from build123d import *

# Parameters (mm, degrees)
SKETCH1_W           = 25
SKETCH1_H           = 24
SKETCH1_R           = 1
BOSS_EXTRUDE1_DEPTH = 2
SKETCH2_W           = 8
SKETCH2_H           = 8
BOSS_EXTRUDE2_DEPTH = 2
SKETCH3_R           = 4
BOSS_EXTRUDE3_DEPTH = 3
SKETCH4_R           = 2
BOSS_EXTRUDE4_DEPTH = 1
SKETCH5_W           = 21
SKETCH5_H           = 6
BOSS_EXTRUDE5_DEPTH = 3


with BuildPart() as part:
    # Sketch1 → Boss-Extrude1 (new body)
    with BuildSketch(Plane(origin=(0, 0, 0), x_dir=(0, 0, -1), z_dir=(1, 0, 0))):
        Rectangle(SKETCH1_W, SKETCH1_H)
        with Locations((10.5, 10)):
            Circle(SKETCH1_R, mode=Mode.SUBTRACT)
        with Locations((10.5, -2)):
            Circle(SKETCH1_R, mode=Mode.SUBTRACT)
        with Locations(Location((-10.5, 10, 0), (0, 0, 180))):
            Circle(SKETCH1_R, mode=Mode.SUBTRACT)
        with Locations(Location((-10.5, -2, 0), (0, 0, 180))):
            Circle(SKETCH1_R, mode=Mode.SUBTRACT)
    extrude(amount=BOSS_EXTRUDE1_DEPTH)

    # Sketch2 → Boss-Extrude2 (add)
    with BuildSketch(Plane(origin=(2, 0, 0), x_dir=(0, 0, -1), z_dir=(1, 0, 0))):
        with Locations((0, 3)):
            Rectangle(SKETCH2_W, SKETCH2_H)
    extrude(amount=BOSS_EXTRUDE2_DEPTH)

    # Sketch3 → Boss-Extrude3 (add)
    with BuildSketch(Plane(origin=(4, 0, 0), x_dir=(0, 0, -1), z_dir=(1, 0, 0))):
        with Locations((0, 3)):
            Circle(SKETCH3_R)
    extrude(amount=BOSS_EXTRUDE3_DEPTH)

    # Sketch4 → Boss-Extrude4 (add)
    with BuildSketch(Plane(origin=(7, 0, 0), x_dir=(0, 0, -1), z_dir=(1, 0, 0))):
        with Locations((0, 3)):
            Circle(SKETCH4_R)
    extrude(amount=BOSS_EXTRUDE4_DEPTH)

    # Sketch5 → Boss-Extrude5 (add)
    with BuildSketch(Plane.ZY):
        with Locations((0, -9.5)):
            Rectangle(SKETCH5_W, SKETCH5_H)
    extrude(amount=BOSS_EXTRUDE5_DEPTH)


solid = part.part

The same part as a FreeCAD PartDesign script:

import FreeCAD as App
import Part
import Sketcher
from FreeCAD import Vector
Q = App.Units.Quantity

doc = App.newDocument("Part")
params = doc.addObject("Spreadsheet::Sheet", "Params")
for row, (alias, value) in enumerate([
    ("sketch1_diameter", "2 mm"),
    ("sketch1_width", "24 mm"),
    ("sketch1_height", "25 mm"),
    ("pad1_length", "2 mm"),
    ("sketch2_width", "8 mm"),
    ("pad2_length", "2 mm"),
    ("sketch3_diameter", "8 mm"),
    ("pad3_length", "3 mm"),
    ("sketch4_diameter", "4 mm"),
    ("pad4_length", "1 mm"),
    ("sketch5_width", "6 mm"),
    ("sketch5_height", "21 mm"),
    ("pad5_length", "3 mm"),
], start=1):
    params.set(f"A{row}", alias)
    params.set(f"B{row}", "=" + value)
    params.setAlias(f"B{row}", alias)

body = doc.addObject("PartDesign::Body", "Body")

sketch1 = body.newObject("Sketcher::SketchObject", "Sketch")
sketch1.AttachmentSupport = (doc.getObject("YZ_Plane"), [""])
sketch1.MapMode = "FlatFace"
sketch1.addGeometry([
    Part.LineSegment(Vector(12, 12.5, 0), Vector(-12, 12.5, 0)),
    Part.LineSegment(Vector(-12, 12.5, 0), Vector(-12, -12.5, 0)),
    Part.LineSegment(Vector(-12, -12.5, 0), Vector(12, -12.5, 0)),
    Part.LineSegment(Vector(12, -12.5, 0), Vector(12, 12.5, 0)),
    Part.Circle(Vector(-2, 10.5, 0), Vector(0, 0, 1), 1),
    Part.Circle(Vector(-2, -10.5, 0), Vector(0, 0, 1), 1),
    Part.Circle(Vector(10, 10.5, 0), Vector(0, 0, 1), 1),
    Part.Circle(Vector(10, -10.5, 0), Vector(0, 0, 1), 1),
], False)
sketch1.addConstraint([
    Sketcher.Constraint("Coincident", 0, 2, 1, 1),
    Sketcher.Constraint("Coincident", 1, 2, 2, 1),
    Sketcher.Constraint("Coincident", 2, 2, 3, 1),
    Sketcher.Constraint("Coincident", 3, 2, 0, 1),
    Sketcher.Constraint("Horizontal", 0),
    Sketcher.Constraint("Vertical", 1),
    Sketcher.Constraint("Horizontal", 2),
    Sketcher.Constraint("Vertical", 3),
    Sketcher.Constraint("Equal", 4, 5),
    Sketcher.Constraint("Equal", 5, 6),
    Sketcher.Constraint("Equal", 6, 7),
    Sketcher.Constraint("Symmetric", 0, 2, 2, 2, -1, 1),
    Sketcher.Constraint("Symmetric", 4, 3, 5, 3, -1),
    Sketcher.Constraint("Symmetric", 6, 3, 7, 3, -1),
    Sketcher.Constraint("Horizontal", 4, 3, 6, 3),
    Sketcher.Constraint("Diameter", 4, Q("2 mm")),
    Sketcher.Constraint("DistanceX", 0, 2, 0, 1, Q("24 mm")),
    Sketcher.Constraint("DistanceY", 1, 2, 1, 1, Q("25 mm")),
    Sketcher.Constraint("DistanceX", 4, 3, -1, 1, Q("2 mm")),
    Sketcher.Constraint("DistanceX", -1, 1, 6, 3, Q("10 mm")),
    Sketcher.Constraint("DistanceY", 5, 3, 4, 3, Q("21 mm")),
])
sketch1.setExpression("Constraints[15]", "Params.sketch1_diameter")
sketch1.setExpression("Constraints[16]", "Params.sketch1_width")
sketch1.setExpression("Constraints[17]", "Params.sketch1_height")
pad1 = body.newObject("PartDesign::Pad", "Pad")
pad1.Profile = sketch1
pad1.setExpression("Length", "Params.pad1_length")

sketch2 = body.newObject("Sketcher::SketchObject", "Sketch001")
sketch2.AttachmentSupport = (doc.getObject("YZ_Plane"), [""])
sketch2.MapMode = "FlatFace"
sketch2.AttachmentOffset = App.Placement(Vector(0, 0, 2), App.Rotation())
sketch2.addGeometry([
    Part.LineSegment(Vector(7, 4, 0), Vector(-1, 4, 0)),
    Part.LineSegment(Vector(-1, 4, 0), Vector(-1, -4, 0)),
    Part.LineSegment(Vector(-1, -4, 0), Vector(7, -4, 0)),
    Part.LineSegment(Vector(7, -4, 0), Vector(7, 4, 0)),
], False)
sketch2.addConstraint([
    Sketcher.Constraint("Coincident", 0, 2, 1, 1),
    Sketcher.Constraint("Coincident", 1, 2, 2, 1),
    Sketcher.Constraint("Coincident", 2, 2, 3, 1),
    Sketcher.Constraint("Coincident", 3, 2, 0, 1),
    Sketcher.Constraint("Horizontal", 0),
    Sketcher.Constraint("Vertical", 1),
    Sketcher.Constraint("Horizontal", 2),
    Sketcher.Constraint("Vertical", 3),
    Sketcher.Constraint("Equal", 2, 1),
    Sketcher.Constraint("DistanceX", 0, 2, 0, 1, Q("8 mm")),
    Sketcher.Constraint("DistanceX", 0, 2, -1, 1, Q("1 mm")),
    Sketcher.Constraint("DistanceY", -1, 1, 0, 2, Q("4 mm")),
])
sketch2.setExpression("Constraints[9]", "Params.sketch2_width")
pad2 = body.newObject("PartDesign::Pad", "Pad001")
pad2.Profile = sketch2
pad2.setExpression("Length", "Params.pad2_length")

sketch3 = body.newObject("Sketcher::SketchObject", "Sketch002")
sketch3.AttachmentSupport = (doc.getObject("YZ_Plane"), [""])
sketch3.MapMode = "FlatFace"
sketch3.AttachmentOffset = App.Placement(Vector(0, 0, 4), App.Rotation())
sketch3.addGeometry(Part.Circle(Vector(3, 0, 0), Vector(0, 0, 1), 4), False)
sketch3.addConstraint([
    Sketcher.Constraint("PointOnObject", 0, 3, -1),
    Sketcher.Constraint("Diameter", 0, Q("8 mm")),
    Sketcher.Constraint("DistanceX", -1, 1, 0, 3, Q("3 mm")),
])
sketch3.setExpression("Constraints[1]", "Params.sketch3_diameter")
pad3 = body.newObject("PartDesign::Pad", "Pad002")
pad3.Profile = sketch3
pad3.setExpression("Length", "Params.pad3_length")

sketch4 = body.newObject("Sketcher::SketchObject", "Sketch003")
sketch4.AttachmentSupport = (doc.getObject("YZ_Plane"), [""])
sketch4.MapMode = "FlatFace"
sketch4.AttachmentOffset = App.Placement(Vector(0, 0, 7), App.Rotation())
sketch4.addGeometry(Part.Circle(Vector(3, 0, 0), Vector(0, 0, 1), 2), False)
sketch4.addConstraint([
    Sketcher.Constraint("PointOnObject", 0, 3, -1),
    Sketcher.Constraint("Diameter", 0, Q("4 mm")),
    Sketcher.Constraint("DistanceX", -1, 1, 0, 3, Q("3 mm")),
])
sketch4.setExpression("Constraints[1]", "Params.sketch4_diameter")
pad4 = body.newObject("PartDesign::Pad", "Pad003")
pad4.Profile = sketch4
pad4.setExpression("Length", "Params.pad4_length")

sketch5 = body.newObject("Sketcher::SketchObject", "Sketch004")
sketch5.AttachmentSupport = (doc.getObject("YZ_Plane"), [""])
sketch5.MapMode = "FlatFace"
sketch5.addGeometry([
    Part.LineSegment(Vector(-6, -10, 0), Vector(-12, -10, 0)),
    Part.LineSegment(Vector(-12, -10, 0), Vector(-12, 10, 0)),
    Part.LineSegment(Vector(-12, 10, 0), Vector(-6, 10, 0)),
    Part.LineSegment(Vector(-6, 10, 0), Vector(-6, -10, 0)),
], False)
sketch5.addConstraint([
    Sketcher.Constraint("Coincident", 0, 2, 1, 1),
    Sketcher.Constraint("Coincident", 1, 2, 2, 1),
    Sketcher.Constraint("Coincident", 2, 2, 3, 1),
    Sketcher.Constraint("Coincident", 3, 2, 0, 1),
    Sketcher.Constraint("Horizontal", 0),
    Sketcher.Constraint("Vertical", 1),
    Sketcher.Constraint("Horizontal", 2),
    Sketcher.Constraint("Vertical", 3),
    Sketcher.Constraint("DistanceX", 0, 2, 0, 1, Q("6 mm")),
    Sketcher.Constraint("DistanceY", 1, 1, 1, 2, Q("21 mm")),
    Sketcher.Constraint("DistanceX", 0, 2, -1, 1, Q("12.5 mm")),
    Sketcher.Constraint("DistanceY", 0, 2, -1, 1, Q("10.5 mm")),
])
sketch5.setExpression("Constraints[8]", "Params.sketch5_width")
sketch5.setExpression("Constraints[9]", "Params.sketch5_height")
pad5 = body.newObject("PartDesign::Pad", "Pad004")
pad5.Profile = sketch5
pad5.setExpression("Length", "Params.pad5_length")
pad5.Reversed = True

doc.recompute()
